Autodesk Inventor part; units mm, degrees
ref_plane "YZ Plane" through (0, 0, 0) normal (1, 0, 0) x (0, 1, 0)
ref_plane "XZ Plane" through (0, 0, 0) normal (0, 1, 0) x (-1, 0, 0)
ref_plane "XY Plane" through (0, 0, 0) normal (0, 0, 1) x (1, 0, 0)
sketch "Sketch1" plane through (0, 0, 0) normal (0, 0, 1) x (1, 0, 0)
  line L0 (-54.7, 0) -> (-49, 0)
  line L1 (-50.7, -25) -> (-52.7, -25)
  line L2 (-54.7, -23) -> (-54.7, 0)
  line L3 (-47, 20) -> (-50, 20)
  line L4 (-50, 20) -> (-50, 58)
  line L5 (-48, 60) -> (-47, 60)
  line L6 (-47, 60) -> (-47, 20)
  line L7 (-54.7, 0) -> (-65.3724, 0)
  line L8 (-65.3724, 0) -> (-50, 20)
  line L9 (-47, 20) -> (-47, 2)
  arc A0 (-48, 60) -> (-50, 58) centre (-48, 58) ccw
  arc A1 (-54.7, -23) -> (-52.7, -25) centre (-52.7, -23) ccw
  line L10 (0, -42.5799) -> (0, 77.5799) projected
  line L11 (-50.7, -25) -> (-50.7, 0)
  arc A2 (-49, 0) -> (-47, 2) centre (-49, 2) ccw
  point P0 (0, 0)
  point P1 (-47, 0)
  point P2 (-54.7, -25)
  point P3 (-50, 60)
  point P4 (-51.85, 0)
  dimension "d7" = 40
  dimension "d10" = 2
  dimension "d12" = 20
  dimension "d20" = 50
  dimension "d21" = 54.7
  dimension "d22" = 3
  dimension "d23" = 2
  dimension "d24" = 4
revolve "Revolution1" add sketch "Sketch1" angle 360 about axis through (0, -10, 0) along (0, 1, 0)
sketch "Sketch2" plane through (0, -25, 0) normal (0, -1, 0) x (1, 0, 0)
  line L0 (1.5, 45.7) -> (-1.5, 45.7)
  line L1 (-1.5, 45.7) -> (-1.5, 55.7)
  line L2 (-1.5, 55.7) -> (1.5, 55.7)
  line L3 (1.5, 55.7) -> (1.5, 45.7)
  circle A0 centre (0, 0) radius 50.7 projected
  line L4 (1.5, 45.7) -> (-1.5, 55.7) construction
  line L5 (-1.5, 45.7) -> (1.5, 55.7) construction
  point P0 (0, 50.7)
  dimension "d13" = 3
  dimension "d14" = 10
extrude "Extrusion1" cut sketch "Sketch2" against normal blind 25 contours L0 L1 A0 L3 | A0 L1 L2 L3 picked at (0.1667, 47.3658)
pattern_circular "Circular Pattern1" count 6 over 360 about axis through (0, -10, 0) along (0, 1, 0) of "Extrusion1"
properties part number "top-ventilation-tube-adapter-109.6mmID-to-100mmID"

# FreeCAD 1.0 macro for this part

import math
import FreeCAD as App
import Part
import Sketcher
Q = App.Units.Quantity

doc = App.newDocument("Part")
body = doc.addObject("PartDesign::Body", "Body")

# Sketch on XY plane
sketch1 = body.newObject("Sketcher::SketchObject", "Sketch")
sketch1.AttachmentSupport = (doc.getObject("XY_Plane"), [""])
sketch1.MapMode = "FlatFace"
sketch1.addGeometry([
    Part.LineSegment(App.Vector(-65.4, 0, 0), App.Vector(-54.7, 0, 0)),  # 0
    Part.LineSegment(App.Vector(-54.7, 0, 0), App.Vector(-54.7, -23, 0)),  # 1
    Part.ArcOfCircle(Part.Circle(App.Vector(-52.7, -23, 0), App.Vector(0, 0, 1), 2), math.radians(180), math.radians(270)),  # 2
    Part.LineSegment(App.Vector(-52.7, -25, 0), App.Vector(-50.7, -25, 0)),  # 3
    Part.LineSegment(App.Vector(-50.7, -25, 0), App.Vector(-50.7, 0, 0)),  # 4
    Part.LineSegment(App.Vector(-50.7, 0, 0), App.Vector(-49, 0, 0)),  # 5
    Part.ArcOfCircle(Part.Circle(App.Vector(-49, 2, 0), App.Vector(0, 0, 1), 2), math.radians(-90), math.radians(0)),  # 6
    Part.LineSegment(App.Vector(-47, 2, 0), App.Vector(-47, 60, 0)),  # 7
    Part.LineSegment(App.Vector(-47, 60, 0), App.Vector(-48, 60, 0)),  # 8
    Part.ArcOfCircle(Part.Circle(App.Vector(-48, 58, 0), App.Vector(0, 0, 1), 2), math.radians(90), math.radians(180)),  # 9
    Part.LineSegment(App.Vector(-50, 58, 0), App.Vector(-50, 20, 0)),  # 10
    Part.LineSegment(App.Vector(-50, 20, 0), App.Vector(-65.4, 0, 0)),  # 11
], False)
sketch1.addConstraint([
    Sketcher.Constraint("Coincident", 0, 2, 1, 1),
    Sketcher.Constraint("Tangent", 1, 2, 2, 1),
    Sketcher.Constraint("Tangent", 2, 2, 3, 1),
    Sketcher.Constraint("Coincident", 3, 2, 4, 1),
    Sketcher.Constraint("Coincident", 4, 2, 5, 1),
    Sketcher.Constraint("Tangent", 5, 2, 6, 1),
    Sketcher.Constraint("Tangent", 6, 2, 7, 1),
    Sketcher.Constraint("Coincident", 7, 2, 8, 1),
    Sketcher.Constraint("Tangent", 8, 2, 9, 1),
    Sketcher.Constraint("Tangent", 9, 2, 10, 1),
    Sketcher.Constraint("Coincident", 10, 2, 11, 1),
    Sketcher.Constraint("Coincident", 11, 2, 0, 1),
    Sketcher.Constraint("Horizontal", 0),
    Sketcher.Constraint("Vertical", 1),
    Sketcher.Constraint("Horizontal", 3),
    Sketcher.Constraint("Vertical", 4),
    Sketcher.Constraint("Horizontal", 5),
    Sketcher.Constraint("Vertical", 7),
    Sketcher.Constraint("Horizontal", 8),
    Sketcher.Constraint("Vertical", 10),
    Sketcher.Constraint("Equal", 2, 6),
    Sketcher.Constraint("Equal", 6, 9),
    Sketcher.Constraint("PointOnObject", 0, 2, -1),
    Sketcher.Constraint("PointOnObject", 4, 2, -1),
    Sketcher.Constraint("Radius", 2, Q("2 mm")),
    Sketcher.Constraint("DistanceX", 3, 1, 3, 2, Q("2 mm")),
    Sketcher.Constraint("DistanceX", 9, 2, -1, 1, Q("50 mm")),
    Sketcher.Constraint("DistanceY", -1, 1, 10, 2, Q("20 mm")),
    Sketcher.Constraint("DistanceX", 9, 2, 7, 2, Q("3 mm")),
    Sketcher.Constraint("DistanceX", 0, 2, -1, 1, Q("54.7 mm")),
    Sketcher.Constraint("DistanceY", 1, 2, 1, 1, Q("23 mm")),
    Sketcher.Constraint("DistanceY", 7, 1, 7, 2, Q("58 mm")),
    Sketcher.Constraint("DistanceX", 0, 1, 0, 2, Q("10.6724 mm")),
])
revolution = body.newObject("PartDesign::Revolution", "Revolution")
revolution.Profile = sketch1
revolution.ReferenceAxis = (sketch1, ["V_Axis"])
revolution.Angle = 360

# Sketch on XZ plane
sketch2 = body.newObject("Sketcher::SketchObject", "Sketch001")
sketch2.AttachmentSupport = (doc.getObject("XZ_Plane"), [""])
sketch2.MapMode = "FlatFace"
sketch2.AttachmentOffset = App.Placement(App.Vector(0, 0, 25), App.Rotation())
sketch2.addGeometry([
    Part.LineSegment(App.Vector(-1.5, 45.7, 0), App.Vector(1.5, 45.7, 0)),
    Part.LineSegment(App.Vector(1.5, 45.7, 0), App.Vector(1.5, 55.7, 0)),
    Part.LineSegment(App.Vector(1.5, 55.7, 0), App.Vector(-1.5, 55.7, 0)),
    Part.LineSegment(App.Vector(-1.5, 55.7, 0), App.Vector(-1.5, 45.7, 0)),
], False)
sketch2.addConstraint([
    Sketcher.Constraint("Coincident", 0, 2, 1, 1),
    Sketcher.Constraint("Coincident", 1, 2, 2, 1),
    Sketcher.Constraint("Coincident", 2, 2, 3, 1),
    Sketcher.Constraint("Coincident", 3, 2, 0, 1),
    Sketcher.Constraint("Horizontal", 0),
    Sketcher.Constraint("Vertical", 1),
    Sketcher.Constraint("Horizontal", 2),
    Sketcher.Constraint("Vertical", 3),
    Sketcher.Constraint("DistanceX", 0, 1, 0, 2, Q("3 mm")),
    Sketcher.Constraint("DistanceY", 1, 1, 1, 2, Q("10 mm")),
    Sketcher.Constraint("DistanceX", -1, 1, 0, 2, Q("1.5 mm")),
    Sketcher.Constraint("DistanceY", -1, 1, 0, 2, Q("45.7 mm")),
])
pocket1 = body.newObject("PartDesign::Pocket", "Pocket")
pocket1.Profile = sketch2
pocket1.Length = 25
doc.recompute()

polarpattern = body.newObject("PartDesign::PolarPattern", "PolarPattern")
polarpattern.Originals = [pocket1]
polarpattern.Axis = (doc.getObject("Y_Axis"), [""])
polarpattern.Angle = 360
polarpattern.Occurrences = 6
body.Tip = polarpattern

doc.recompute()
